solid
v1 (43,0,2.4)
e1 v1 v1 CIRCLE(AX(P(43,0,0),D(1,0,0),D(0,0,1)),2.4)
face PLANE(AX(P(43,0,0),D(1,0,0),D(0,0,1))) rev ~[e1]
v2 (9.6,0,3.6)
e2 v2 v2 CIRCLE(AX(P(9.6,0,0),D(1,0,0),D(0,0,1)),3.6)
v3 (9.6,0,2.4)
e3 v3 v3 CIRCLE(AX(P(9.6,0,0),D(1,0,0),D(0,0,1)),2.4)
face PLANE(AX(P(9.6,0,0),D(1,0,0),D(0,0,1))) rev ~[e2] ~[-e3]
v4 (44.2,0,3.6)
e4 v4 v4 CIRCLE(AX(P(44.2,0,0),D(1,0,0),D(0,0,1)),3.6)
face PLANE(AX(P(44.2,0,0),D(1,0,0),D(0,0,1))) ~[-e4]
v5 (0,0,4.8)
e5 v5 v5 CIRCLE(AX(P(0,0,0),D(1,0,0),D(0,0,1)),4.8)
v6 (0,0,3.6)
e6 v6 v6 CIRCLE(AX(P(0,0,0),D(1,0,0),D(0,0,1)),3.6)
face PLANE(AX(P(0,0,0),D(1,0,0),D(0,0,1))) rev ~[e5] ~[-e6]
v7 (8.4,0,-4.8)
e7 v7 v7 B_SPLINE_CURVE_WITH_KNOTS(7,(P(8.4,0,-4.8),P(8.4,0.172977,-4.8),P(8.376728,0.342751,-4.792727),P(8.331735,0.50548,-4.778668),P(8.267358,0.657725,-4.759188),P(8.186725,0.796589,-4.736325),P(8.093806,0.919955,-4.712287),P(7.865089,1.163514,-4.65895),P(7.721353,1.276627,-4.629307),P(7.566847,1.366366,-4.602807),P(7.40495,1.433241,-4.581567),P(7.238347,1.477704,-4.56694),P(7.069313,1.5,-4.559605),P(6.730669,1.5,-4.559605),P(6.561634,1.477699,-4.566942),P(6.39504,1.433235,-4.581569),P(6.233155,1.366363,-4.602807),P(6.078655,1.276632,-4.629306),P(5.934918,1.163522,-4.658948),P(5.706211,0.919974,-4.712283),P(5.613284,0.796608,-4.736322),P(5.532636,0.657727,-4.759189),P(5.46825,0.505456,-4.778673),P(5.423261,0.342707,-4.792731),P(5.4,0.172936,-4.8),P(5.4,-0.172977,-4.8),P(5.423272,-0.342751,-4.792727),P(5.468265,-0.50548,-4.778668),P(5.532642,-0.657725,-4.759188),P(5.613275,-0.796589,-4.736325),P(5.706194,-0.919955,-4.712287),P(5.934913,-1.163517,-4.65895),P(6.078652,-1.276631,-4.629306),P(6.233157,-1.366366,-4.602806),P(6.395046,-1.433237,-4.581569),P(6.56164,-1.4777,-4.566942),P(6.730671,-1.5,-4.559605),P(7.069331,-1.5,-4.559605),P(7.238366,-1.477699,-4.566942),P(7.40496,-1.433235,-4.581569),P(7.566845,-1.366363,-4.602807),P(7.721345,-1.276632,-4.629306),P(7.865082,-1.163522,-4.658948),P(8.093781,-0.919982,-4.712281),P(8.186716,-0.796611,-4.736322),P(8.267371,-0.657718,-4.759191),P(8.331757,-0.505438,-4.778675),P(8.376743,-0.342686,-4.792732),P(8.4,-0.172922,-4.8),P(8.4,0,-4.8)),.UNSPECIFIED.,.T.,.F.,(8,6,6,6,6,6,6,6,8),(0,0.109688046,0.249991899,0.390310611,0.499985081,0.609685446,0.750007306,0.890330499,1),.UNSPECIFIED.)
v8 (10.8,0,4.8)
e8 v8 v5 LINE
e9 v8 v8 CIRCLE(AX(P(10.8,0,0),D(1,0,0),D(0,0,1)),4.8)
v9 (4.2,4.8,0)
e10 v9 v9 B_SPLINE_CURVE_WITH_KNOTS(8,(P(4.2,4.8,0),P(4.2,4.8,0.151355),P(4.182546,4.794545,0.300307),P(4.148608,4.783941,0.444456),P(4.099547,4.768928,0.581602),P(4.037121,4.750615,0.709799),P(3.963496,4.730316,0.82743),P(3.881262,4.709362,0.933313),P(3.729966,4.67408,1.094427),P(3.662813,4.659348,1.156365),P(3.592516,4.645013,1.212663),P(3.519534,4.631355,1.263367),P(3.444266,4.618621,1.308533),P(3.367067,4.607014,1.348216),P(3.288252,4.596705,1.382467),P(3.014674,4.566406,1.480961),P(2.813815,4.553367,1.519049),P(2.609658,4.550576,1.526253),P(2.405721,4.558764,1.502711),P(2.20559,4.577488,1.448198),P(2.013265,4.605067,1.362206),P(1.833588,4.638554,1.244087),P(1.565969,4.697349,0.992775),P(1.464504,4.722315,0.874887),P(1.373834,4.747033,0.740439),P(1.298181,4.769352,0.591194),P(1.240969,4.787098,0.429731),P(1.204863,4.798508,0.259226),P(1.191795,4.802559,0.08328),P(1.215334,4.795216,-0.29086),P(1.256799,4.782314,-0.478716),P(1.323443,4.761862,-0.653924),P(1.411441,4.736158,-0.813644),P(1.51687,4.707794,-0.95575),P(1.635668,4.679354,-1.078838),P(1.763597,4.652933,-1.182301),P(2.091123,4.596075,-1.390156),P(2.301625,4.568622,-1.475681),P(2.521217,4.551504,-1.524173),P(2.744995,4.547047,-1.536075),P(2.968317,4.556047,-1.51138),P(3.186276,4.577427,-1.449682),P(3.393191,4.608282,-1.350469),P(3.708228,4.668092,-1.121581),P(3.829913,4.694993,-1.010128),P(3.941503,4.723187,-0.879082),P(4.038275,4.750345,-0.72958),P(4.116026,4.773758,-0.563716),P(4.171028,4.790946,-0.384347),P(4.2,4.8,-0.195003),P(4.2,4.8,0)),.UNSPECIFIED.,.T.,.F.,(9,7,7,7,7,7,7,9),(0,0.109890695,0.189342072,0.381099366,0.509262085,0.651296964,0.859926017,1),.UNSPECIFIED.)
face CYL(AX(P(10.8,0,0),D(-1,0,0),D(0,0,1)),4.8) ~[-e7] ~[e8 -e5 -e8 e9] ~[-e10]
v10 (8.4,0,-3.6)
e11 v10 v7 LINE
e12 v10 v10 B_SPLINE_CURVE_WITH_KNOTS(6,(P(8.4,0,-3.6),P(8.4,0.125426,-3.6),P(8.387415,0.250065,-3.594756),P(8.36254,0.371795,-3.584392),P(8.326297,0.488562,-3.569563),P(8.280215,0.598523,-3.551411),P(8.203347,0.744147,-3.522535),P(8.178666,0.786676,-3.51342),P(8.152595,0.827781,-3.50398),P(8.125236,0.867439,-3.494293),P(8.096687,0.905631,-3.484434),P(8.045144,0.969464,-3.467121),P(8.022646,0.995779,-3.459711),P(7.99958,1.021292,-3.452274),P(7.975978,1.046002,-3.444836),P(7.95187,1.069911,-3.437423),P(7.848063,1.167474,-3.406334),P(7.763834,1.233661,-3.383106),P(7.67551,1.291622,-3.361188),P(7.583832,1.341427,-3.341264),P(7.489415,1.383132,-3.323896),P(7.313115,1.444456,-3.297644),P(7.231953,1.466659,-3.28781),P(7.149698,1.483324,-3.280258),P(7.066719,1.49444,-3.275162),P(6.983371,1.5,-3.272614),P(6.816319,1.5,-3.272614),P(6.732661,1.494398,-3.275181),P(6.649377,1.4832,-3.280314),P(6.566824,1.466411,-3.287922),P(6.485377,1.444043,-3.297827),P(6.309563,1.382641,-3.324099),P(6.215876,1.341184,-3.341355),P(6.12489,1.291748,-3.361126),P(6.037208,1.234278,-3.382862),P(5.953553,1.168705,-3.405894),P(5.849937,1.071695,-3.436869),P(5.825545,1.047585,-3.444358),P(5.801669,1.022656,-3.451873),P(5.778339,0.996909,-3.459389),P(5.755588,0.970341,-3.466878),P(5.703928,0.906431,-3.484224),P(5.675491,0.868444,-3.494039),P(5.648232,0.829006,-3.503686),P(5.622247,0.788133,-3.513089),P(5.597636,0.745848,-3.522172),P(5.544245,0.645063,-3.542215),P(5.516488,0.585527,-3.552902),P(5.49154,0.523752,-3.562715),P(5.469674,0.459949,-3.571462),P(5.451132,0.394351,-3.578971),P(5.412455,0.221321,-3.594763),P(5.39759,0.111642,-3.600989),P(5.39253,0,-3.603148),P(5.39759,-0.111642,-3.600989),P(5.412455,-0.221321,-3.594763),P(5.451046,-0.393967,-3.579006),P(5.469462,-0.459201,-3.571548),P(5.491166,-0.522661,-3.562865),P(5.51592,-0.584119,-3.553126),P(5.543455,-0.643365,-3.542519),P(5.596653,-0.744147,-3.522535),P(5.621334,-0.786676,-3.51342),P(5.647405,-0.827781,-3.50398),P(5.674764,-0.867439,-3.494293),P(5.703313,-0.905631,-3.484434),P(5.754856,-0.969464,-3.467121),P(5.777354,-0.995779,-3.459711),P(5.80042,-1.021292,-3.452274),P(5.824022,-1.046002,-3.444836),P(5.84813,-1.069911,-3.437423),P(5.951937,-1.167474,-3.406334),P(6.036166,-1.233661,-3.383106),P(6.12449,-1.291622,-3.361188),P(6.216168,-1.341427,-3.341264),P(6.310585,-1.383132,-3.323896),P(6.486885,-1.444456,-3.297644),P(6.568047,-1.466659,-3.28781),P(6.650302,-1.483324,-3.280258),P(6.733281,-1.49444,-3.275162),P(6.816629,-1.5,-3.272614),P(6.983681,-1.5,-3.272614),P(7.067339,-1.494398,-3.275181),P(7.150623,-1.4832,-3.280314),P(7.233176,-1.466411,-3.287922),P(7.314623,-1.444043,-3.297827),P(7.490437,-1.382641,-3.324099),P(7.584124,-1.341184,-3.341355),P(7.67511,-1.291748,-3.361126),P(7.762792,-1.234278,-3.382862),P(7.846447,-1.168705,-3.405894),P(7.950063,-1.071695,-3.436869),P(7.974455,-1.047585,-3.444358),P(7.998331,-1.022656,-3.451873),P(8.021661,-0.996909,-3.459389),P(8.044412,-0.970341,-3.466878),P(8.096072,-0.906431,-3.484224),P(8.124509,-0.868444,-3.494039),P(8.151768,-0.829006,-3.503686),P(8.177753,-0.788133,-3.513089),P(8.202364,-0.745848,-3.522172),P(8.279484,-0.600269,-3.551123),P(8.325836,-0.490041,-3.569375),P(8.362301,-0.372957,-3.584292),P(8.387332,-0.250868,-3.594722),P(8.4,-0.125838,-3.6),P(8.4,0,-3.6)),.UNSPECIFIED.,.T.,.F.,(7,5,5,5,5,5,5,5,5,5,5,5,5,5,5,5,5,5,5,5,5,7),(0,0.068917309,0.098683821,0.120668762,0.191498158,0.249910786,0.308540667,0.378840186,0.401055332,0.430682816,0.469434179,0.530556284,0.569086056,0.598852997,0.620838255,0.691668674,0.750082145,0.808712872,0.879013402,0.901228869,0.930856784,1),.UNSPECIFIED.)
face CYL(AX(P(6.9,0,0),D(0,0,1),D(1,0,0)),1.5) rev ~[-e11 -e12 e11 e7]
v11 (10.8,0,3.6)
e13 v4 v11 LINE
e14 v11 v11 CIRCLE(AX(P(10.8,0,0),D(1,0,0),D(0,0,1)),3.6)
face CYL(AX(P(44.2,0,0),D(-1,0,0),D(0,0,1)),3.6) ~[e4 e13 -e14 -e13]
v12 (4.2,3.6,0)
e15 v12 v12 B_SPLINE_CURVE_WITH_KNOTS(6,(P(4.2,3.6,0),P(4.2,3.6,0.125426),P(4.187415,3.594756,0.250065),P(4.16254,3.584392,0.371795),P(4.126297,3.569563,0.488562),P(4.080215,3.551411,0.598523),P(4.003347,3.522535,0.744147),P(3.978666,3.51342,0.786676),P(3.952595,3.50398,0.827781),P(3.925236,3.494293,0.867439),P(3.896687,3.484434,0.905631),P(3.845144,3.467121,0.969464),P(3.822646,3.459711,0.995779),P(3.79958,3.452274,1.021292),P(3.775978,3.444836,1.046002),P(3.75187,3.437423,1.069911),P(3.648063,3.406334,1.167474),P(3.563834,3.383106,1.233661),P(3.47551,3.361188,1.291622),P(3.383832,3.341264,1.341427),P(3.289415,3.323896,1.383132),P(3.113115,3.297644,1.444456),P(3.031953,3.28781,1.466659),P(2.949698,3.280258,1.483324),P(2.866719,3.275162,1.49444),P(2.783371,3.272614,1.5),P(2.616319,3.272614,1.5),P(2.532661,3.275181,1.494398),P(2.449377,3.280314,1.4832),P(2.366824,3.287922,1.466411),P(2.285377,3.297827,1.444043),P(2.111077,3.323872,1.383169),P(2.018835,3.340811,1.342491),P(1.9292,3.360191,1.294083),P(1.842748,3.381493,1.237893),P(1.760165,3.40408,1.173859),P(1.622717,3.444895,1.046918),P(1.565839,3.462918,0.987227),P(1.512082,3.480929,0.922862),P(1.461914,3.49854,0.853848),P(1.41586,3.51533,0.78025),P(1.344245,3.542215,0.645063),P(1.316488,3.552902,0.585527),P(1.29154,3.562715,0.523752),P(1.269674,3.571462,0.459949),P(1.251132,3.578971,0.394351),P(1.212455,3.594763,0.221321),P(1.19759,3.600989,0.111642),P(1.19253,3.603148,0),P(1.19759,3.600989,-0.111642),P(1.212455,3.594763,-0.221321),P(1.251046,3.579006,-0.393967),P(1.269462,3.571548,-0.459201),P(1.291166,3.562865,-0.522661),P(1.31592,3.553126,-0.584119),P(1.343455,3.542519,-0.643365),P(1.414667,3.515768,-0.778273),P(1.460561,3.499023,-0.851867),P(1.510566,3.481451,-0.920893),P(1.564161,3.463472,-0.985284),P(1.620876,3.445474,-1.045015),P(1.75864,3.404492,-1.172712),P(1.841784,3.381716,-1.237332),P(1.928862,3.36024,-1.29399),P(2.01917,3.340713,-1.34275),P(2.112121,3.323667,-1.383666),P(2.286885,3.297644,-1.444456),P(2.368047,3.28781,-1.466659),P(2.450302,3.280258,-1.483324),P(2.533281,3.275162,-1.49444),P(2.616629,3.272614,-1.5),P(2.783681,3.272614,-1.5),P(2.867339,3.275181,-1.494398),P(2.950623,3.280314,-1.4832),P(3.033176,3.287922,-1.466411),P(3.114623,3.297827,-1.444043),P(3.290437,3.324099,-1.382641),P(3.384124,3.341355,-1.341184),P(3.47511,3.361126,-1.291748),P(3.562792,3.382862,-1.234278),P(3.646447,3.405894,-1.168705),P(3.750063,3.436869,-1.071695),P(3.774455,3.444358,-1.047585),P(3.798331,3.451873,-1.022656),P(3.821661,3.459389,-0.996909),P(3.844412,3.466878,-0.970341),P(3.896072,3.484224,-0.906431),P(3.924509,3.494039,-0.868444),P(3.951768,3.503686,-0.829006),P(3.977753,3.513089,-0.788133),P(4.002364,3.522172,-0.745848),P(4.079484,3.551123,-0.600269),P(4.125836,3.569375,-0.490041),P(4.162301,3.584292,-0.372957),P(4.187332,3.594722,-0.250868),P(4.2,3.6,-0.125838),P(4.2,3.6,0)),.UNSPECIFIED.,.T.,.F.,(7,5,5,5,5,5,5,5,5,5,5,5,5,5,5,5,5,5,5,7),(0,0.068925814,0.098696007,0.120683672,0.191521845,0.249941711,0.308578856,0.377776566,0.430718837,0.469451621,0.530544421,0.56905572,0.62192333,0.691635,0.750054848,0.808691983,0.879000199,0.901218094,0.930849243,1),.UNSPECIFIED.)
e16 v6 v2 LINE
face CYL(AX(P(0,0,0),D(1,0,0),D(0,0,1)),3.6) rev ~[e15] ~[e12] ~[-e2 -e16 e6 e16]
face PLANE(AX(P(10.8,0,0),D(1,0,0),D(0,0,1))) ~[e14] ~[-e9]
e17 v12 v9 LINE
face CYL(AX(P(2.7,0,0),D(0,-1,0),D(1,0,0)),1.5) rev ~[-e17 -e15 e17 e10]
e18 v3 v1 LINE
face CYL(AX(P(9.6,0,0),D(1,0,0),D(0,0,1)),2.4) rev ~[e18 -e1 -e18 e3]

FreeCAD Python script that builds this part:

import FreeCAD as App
import Part
import Sketcher
from FreeCAD import Vector
Q = App.Units.Quantity

doc = App.newDocument("Part")
params = doc.addObject("Spreadsheet::Sheet", "Params")
for row, (alias, value) in enumerate([
    ("sketch1_width", "9.6 mm"),
    ("sketch1_width2", "33.4 mm"),
    ("sketch1_width3", "1.2 mm"),
    ("sketch1_height", "2.4 mm"),
    ("revolution_angle", "360 deg"),
    ("sketch2_diameter", "3 mm"),
    ("sketch3_diameter", "3 mm"),
], start=1):
    params.set(f"A{row}", alias)
    params.set(f"B{row}", "=" + value)
    params.setAlias(f"B{row}", alias)

body = doc.addObject("PartDesign::Body", "Body")

# Sketch on XZ plane
sketch1 = body.newObject("Sketcher::SketchObject", "Sketch")
sketch1.AttachmentSupport = (doc.getObject("XZ_Plane"), [""])
sketch1.MapMode = "FlatFace"
sketch1.addGeometry(Part.LineSegment(Vector(0, 4.8, 0), Vector(0, 3.6, 0)), False)
sketch1.addGeometry(Part.LineSegment(Vector(0, 3.6, 0), Vector(9.6, 3.6, 0)), False)
sketch1.addGeometry(Part.LineSegment(Vector(9.6, 3.6, 0), Vector(9.6, 2.4, 0)), False)
sketch1.addGeometry(Part.LineSegment(Vector(9.6, 2.4, 0), Vector(43, 2.4, 0)), False)
sketch1.addGeometry(Part.LineSegment(Vector(43, 2.4, 0), Vector(43, 0, 0)), False)
sketch1.addGeometry(Part.LineSegment(Vector(43, 0, 0), Vector(44.2, 0, 0)), False)
sketch1.addGeometry(Part.LineSegment(Vector(44.2, 0, 0), Vector(44.2, 3.6, 0)), False)
sketch1.addGeometry(Part.LineSegment(Vector(44.2, 3.6, 0), Vector(10.8, 3.6, 0)), False)
sketch1.addGeometry(Part.LineSegment(Vector(10.8, 3.6, 0), Vector(10.8, 4.8, 0)), False)
sketch1.addGeometry(Part.LineSegment(Vector(10.8, 4.8, 0), Vector(0, 4.8, 0)), False)
sketch1.addConstraint(Sketcher.Constraint("Coincident", 0, 2, 1, 1))
sketch1.addConstraint(Sketcher.Constraint("Coincident", 1, 2, 2, 1))
sketch1.addConstraint(Sketcher.Constraint("Coincident", 2, 2, 3, 1))
sketch1.addConstraint(Sketcher.Constraint("Coincident", 3, 2, 4, 1))
sketch1.addConstraint(Sketcher.Constraint("Coincident", 4, 2, 5, 1))
sketch1.addConstraint(Sketcher.Constraint("Coincident", 5, 2, 6, 1))
sketch1.addConstraint(Sketcher.Constraint("Coincident", 6, 2, 7, 1))
sketch1.addConstraint(Sketcher.Constraint("Coincident", 7, 2, 8, 1))
sketch1.addConstraint(Sketcher.Constraint("Coincident", 8, 2, 9, 1))
sketch1.addConstraint(Sketcher.Constraint("Coincident", 9, 2, 0, 1))
sketch1.addConstraint(Sketcher.Constraint("Vertical", 0))
sketch1.addConstraint(Sketcher.Constraint("Horizontal", 1))
sketch1.addConstraint(Sketcher.Constraint("Vertical", 2))
sketch1.addConstraint(Sketcher.Constraint("Horizontal", 3))
sketch1.addConstraint(Sketcher.Constraint("Vertical", 4))
sketch1.addConstraint(Sketcher.Constraint("Horizontal", 5))
sketch1.addConstraint(Sketcher.Constraint("Vertical", 6))
sketch1.addConstraint(Sketcher.Constraint("Horizontal", 7))
sketch1.addConstraint(Sketcher.Constraint("Vertical", 8))
sketch1.addConstraint(Sketcher.Constraint("Horizontal", 9))
sketch1.addConstraint(Sketcher.Constraint("PointOnObject", 0, 2, -2))
sketch1.addConstraint(Sketcher.Constraint("PointOnObject", 4, 2, -1))
sketch1.addConstraint(Sketcher.Constraint("Horizontal", 1, 2, 6, 2))
sketch1.addConstraint(Sketcher.Constraint("Equal", 3, 7))
sketch1.addConstraint(Sketcher.Constraint("Equal", 5, 0))
sketch1.addConstraint(Sketcher.Constraint("Equal", 0, 2))
sketch1.addConstraint(Sketcher.Constraint("DistanceX", 1, 1, 1, 2, Q("9.6 mm")))
sketch1.addConstraint(Sketcher.Constraint("DistanceX", 3, 1, 3, 2, Q("33.4 mm")))
sketch1.addConstraint(Sketcher.Constraint("DistanceX", 5, 1, 5, 2, Q("1.2 mm")))
sketch1.addConstraint(Sketcher.Constraint("DistanceY", 4, 2, 4, 1, Q("2.4 mm")))
sketch1.setExpression("Constraints[26]", "Params.sketch1_width")
sketch1.setExpression("Constraints[27]", "Params.sketch1_width2")
sketch1.setExpression("Constraints[28]", "Params.sketch1_width3")
sketch1.setExpression("Constraints[29]", "Params.sketch1_height")
revolution = body.newObject("PartDesign::Revolution", "Revolution")
revolution.Profile = sketch1
revolution.ReferenceAxis = (sketch1, ["H_Axis"])
revolution.setExpression("Angle", "Params.revolution_angle")

# Sketch on XZ plane
sketch2 = body.newObject("Sketcher::SketchObject", "Sketch001")
sketch2.AttachmentSupport = (doc.getObject("XZ_Plane"), [""])
sketch2.MapMode = "FlatFace"
sketch2.addGeometry(Part.Circle(Vector(2.7, 0, 0), Vector(0, 0, 1), 1.5), False)
sketch2.addConstraint(Sketcher.Constraint("PointOnObject", 0, 3, -1))
sketch2.addConstraint(Sketcher.Constraint("Diameter", 0, Q("3 mm")))
sketch2.addConstraint(Sketcher.Constraint("DistanceX", -1, 1, 0, 3, Q("2.7 mm")))
sketch2.setExpression("Constraints[1]", "Params.sketch2_diameter")
pocket1 = body.newObject("PartDesign::Pocket", "Pocket")
pocket1.Profile = sketch2
pocket1.Type = "ThroughAll"

# Sketch on XY plane
sketch3 = body.newObject("Sketcher::SketchObject", "Sketch002")
sketch3.AttachmentSupport = (doc.getObject("XY_Plane"), [""])
sketch3.MapMode = "FlatFace"
sketch3.addGeometry(Part.Circle(Vector(6.9, 0, 0), Vector(0, 0, 1), 1.5), False)
sketch3.addConstraint(Sketcher.Constraint("PointOnObject", 0, 3, -1))
sketch3.addConstraint(Sketcher.Constraint("Diameter", 0, Q("3 mm")))
sketch3.addConstraint(Sketcher.Constraint("DistanceX", -1, 1, 0, 3, Q("6.9 mm")))
sketch3.setExpression("Constraints[1]", "Params.sketch3_diameter")
pocket2 = body.newObject("PartDesign::Pocket", "Pocket001")
pocket2.Profile = sketch3
pocket2.Type = "ThroughAll"

doc.recompute()
